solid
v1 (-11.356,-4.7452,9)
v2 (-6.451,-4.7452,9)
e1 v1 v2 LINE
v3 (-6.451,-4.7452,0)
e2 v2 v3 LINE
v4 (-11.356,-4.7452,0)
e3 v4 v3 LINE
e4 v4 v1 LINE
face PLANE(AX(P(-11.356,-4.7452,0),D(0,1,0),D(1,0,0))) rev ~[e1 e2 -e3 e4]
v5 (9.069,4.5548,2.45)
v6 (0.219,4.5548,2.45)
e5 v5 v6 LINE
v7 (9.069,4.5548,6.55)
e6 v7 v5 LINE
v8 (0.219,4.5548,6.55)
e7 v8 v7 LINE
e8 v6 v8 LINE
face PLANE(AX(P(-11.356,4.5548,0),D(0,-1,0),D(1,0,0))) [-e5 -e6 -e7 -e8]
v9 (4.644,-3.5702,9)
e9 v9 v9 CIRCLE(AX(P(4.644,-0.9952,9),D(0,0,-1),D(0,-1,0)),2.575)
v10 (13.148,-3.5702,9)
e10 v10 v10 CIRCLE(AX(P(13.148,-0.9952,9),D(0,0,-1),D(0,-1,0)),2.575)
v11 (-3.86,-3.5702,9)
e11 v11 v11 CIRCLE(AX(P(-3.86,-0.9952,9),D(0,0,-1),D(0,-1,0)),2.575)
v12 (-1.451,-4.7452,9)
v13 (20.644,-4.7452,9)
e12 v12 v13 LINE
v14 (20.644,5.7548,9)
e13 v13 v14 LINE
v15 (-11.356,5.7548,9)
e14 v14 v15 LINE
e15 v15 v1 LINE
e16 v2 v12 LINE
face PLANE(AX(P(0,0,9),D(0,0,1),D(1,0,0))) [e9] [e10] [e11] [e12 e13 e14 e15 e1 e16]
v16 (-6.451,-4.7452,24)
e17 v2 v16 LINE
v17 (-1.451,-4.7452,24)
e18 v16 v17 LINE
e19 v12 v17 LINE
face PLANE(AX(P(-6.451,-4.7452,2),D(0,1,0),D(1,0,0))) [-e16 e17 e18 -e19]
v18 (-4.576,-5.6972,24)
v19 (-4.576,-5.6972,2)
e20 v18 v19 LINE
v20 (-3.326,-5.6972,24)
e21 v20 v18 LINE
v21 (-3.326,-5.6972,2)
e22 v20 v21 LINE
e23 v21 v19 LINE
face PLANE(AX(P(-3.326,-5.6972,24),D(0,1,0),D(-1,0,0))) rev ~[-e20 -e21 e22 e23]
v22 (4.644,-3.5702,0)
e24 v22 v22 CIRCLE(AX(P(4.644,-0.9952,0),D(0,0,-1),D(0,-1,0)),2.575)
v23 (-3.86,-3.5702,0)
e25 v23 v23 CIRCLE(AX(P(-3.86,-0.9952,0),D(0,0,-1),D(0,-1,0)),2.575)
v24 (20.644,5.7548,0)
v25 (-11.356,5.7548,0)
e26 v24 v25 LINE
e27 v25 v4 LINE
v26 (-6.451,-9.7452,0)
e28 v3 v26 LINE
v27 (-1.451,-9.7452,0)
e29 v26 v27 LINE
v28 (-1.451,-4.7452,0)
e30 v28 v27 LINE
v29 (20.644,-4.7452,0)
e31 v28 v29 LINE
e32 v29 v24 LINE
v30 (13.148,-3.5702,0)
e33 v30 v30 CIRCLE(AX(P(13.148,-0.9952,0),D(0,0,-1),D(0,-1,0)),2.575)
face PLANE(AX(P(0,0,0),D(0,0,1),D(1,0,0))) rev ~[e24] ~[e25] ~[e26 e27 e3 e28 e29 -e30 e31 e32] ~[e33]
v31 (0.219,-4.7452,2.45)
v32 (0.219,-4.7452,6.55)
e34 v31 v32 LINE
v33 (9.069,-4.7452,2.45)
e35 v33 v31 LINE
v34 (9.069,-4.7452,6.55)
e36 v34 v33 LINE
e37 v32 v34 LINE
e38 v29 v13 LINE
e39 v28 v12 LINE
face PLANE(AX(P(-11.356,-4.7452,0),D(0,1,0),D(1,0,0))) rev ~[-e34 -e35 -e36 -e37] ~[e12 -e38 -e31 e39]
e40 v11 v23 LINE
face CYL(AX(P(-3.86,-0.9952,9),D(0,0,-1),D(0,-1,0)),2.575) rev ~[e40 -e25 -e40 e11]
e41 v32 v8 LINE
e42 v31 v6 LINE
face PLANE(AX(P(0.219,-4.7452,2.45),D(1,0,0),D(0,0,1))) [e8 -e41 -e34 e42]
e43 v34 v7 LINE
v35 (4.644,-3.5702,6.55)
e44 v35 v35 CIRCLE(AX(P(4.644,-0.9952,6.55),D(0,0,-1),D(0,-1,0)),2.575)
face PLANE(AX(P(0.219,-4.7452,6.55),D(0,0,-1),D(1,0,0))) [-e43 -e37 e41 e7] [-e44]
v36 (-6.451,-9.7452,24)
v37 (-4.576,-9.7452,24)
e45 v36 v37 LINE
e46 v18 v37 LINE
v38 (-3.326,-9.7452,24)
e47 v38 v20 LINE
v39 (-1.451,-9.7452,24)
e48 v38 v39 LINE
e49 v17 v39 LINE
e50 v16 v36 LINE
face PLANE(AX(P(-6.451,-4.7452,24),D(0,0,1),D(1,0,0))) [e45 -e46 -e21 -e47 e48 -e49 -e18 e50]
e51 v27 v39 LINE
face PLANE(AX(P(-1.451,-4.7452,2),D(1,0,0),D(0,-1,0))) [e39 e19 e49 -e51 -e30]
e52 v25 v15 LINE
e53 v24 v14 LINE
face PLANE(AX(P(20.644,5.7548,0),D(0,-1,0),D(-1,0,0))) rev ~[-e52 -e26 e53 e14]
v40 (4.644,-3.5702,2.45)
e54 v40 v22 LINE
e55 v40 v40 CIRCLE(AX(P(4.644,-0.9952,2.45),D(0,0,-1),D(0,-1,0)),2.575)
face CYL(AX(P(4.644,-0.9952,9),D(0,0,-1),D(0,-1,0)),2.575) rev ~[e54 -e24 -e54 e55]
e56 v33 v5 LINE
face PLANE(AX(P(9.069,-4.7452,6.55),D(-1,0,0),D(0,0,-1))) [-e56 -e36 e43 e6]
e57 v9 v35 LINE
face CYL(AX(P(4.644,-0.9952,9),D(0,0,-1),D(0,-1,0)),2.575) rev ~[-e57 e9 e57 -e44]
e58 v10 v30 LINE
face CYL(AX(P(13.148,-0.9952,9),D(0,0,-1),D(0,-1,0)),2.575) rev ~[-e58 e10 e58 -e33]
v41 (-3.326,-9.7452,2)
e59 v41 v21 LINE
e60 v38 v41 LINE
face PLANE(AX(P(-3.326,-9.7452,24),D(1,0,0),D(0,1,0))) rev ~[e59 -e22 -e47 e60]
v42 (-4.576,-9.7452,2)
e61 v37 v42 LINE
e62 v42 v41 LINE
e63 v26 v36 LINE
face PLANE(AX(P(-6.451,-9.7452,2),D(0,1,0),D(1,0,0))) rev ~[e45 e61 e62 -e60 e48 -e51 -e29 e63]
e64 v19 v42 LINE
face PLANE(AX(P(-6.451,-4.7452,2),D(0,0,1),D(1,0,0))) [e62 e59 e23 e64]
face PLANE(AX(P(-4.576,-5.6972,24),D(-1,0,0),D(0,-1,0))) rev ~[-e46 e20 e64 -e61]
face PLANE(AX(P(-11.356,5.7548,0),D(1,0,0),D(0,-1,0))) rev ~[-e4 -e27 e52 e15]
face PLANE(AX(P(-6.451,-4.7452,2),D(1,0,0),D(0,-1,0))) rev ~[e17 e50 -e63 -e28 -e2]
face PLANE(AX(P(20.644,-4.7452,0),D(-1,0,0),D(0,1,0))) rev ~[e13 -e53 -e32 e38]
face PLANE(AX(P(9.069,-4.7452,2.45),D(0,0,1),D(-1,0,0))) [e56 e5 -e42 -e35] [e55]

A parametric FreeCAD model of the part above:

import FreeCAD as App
import Part
import Sketcher
Q = App.Units.Quantity


def add_polygon(sketch, points):
    """Adds a closed chain of lines whose ends are joined by coincident constraints."""
    first, n = sketch.GeometryCount, len(points)
    for a, b in zip(points, points[1:] + points[:1]):
        sketch.addGeometry(Part.LineSegment(App.Vector(*a, 0), App.Vector(*b, 0)), False)
    for i in range(n):
        sketch.addConstraint(Sketcher.Constraint("Coincident", first + i, 2, first + (i + 1) % n, 1))

doc = App.newDocument("Part")
body = doc.addObject("PartDesign::Body", "Body")

# Sketch on XY plane
sketch1 = doc.addObject("Sketcher::SketchObject", "Sketch")
body.addObject(sketch1)
sketch1.AttachmentSupport = (doc.XY_Plane, [""])
sketch1.MapMode = "FlatFace"
add_polygon(sketch1, [(-11.356, 5.7548), (-11.356, -4.7452), (20.644, -4.7452), (20.644, 5.7548)])  # lines 0-3
sketch1.addConstraint(Sketcher.Constraint("Vertical", 0))
sketch1.addConstraint(Sketcher.Constraint("Horizontal", 1))
sketch1.addConstraint(Sketcher.Constraint("Vertical", 2))
sketch1.addConstraint(Sketcher.Constraint("Horizontal", 3))
sketch1.addConstraint(Sketcher.Constraint("DistanceX", 1, 1, 1, 2, Q("32 mm")))
sketch1.addConstraint(Sketcher.Constraint("DistanceY", 0, 2, 0, 1, Q("10.5 mm")))
sketch1.addConstraint(Sketcher.Constraint("DistanceX", 0, 2, -1, 1, Q("11.356 mm")))
sketch1.addConstraint(Sketcher.Constraint("DistanceY", 0, 2, -1, 1, Q("4.7452 mm")))
pad1 = doc.addObject("PartDesign::Pad", "Pad")
body.addObject(pad1)
pad1.Profile = sketch1
pad1.Length = 9

# Sketch on XY plane
sketch2 = doc.addObject("Sketcher::SketchObject", "Sketch001")
body.addObject(sketch2)
sketch2.AttachmentSupport = (doc.XY_Plane, [""])
sketch2.MapMode = "FlatFace"
sketch2.AttachmentOffset = App.Placement(App.Vector(0, 0, 9), App.Rotation())
sketch2.addGeometry(Part.Circle(App.Vector(-3.86, -0.9952, 0), App.Vector(0, 0, 1), 2.575), False)
sketch2.addGeometry(Part.Circle(App.Vector(4.644, -0.9952, 0), App.Vector(0, 0, 1), 2.575), False)
sketch2.addGeometry(Part.Circle(App.Vector(13.148, -0.9952, 0), App.Vector(0, 0, 1), 2.575), False)
sketch2.addConstraint(Sketcher.Constraint("Equal", 0, 1))
sketch2.addConstraint(Sketcher.Constraint("Equal", 1, 2))
sketch2.addConstraint(Sketcher.Constraint("Horizontal", 0, 3, 1, 3))
sketch2.addConstraint(Sketcher.Constraint("Horizontal", 1, 3, 2, 3))
sketch2.addConstraint(Sketcher.Constraint("Diameter", 0, Q("5.15 mm")))
sketch2.addConstraint(Sketcher.Constraint("DistanceX", 0, 3, -1, 1, Q("3.86 mm")))
sketch2.addConstraint(Sketcher.Constraint("DistanceX", -1, 1, 1, 3, Q("4.644 mm")))
sketch2.addConstraint(Sketcher.Constraint("DistanceX", -1, 1, 2, 3, Q("13.148 mm")))
sketch2.addConstraint(Sketcher.Constraint("DistanceY", 0, 3, -1, 1, Q("0.9952 mm")))
doc.recompute()
hole = doc.addObject("PartDesign::Hole", "Hole")
body.addObject(hole)
hole.Profile = sketch2
hole.ThreadType = "None"
hole.Diameter = 5.15
hole.DepthType = "ThroughAll"

# Sketch on XZ plane
sketch3 = doc.addObject("Sketcher::SketchObject", "Sketch002")
body.addObject(sketch3)
sketch3.AttachmentSupport = (doc.XZ_Plane, [""])
sketch3.MapMode = "FlatFace"
sketch3.AttachmentOffset = App.Placement(App.Vector(0, 0, 4.7452), App.Rotation())
add_polygon(sketch3, [(9.069, 6.55), (0.219, 6.55), (0.219, 2.45), (9.069, 2.45)])  # lines 0-3
sketch3.addConstraint(Sketcher.Constraint("Horizontal", 0))
sketch3.addConstraint(Sketcher.Constraint("Vertical", 1))
sketch3.addConstraint(Sketcher.Constraint("Horizontal", 2))
sketch3.addConstraint(Sketcher.Constraint("Vertical", 3))
sketch3.addConstraint(Sketcher.Constraint("DistanceY", 1, 2, 1, 1, Q("4.1 mm")))
sketch3.addConstraint(Sketcher.Constraint("DistanceX", 0, 2, 0, 1, Q("8.85 mm")))
sketch3.addConstraint(Sketcher.Constraint("DistanceY", -1, 1, 1, 2, Q("2.45 mm")))
sketch3.addConstraint(Sketcher.Constraint("DistanceX", -1, 1, 0, 2, Q("0.219 mm")))
pocket1 = doc.addObject("PartDesign::Pocket", "Pocket")
body.addObject(pocket1)
pocket1.Profile = sketch3
pocket1.Length = 9.3

# Sketch on XZ plane
sketch4 = doc.addObject("Sketcher::SketchObject", "Sketch003")
body.addObject(sketch4)
sketch4.AttachmentSupport = (doc.XZ_Plane, [""])
sketch4.MapMode = "FlatFace"
sketch4.AttachmentOffset = App.Placement(App.Vector(0, 0, 4.7452), App.Rotation())
add_polygon(sketch4, [(-6.451, 2), (-6.451, 0), (-1.451, 0), (-1.451, 2)])  # lines 0-3
sketch4.addConstraint(Sketcher.Constraint("Vertical", 0))
sketch4.addConstraint(Sketcher.Constraint("Horizontal", 1))
sketch4.addConstraint(Sketcher.Constraint("Vertical", 2))
sketch4.addConstraint(Sketcher.Constraint("Horizontal", 3))
sketch4.addConstraint(Sketcher.Constraint("PointOnObject", 0, 2, -1))
sketch4.addConstraint(Sketcher.Constraint("DistanceX", 1, 1, 1, 2, Q("5 mm")))
sketch4.addConstraint(Sketcher.Constraint("DistanceY", 0, 2, 0, 1, Q("2 mm")))
sketch4.addConstraint(Sketcher.Constraint("DistanceX", 0, 2, -1, 1, Q("6.451 mm")))
pad2 = doc.addObject("PartDesign::Pad", "Pad001")
body.addObject(pad2)
pad2.Profile = sketch4
pad2.Length = 5

# Sketch on XY plane
sketch5 = doc.addObject("Sketcher::SketchObject", "Sketch004")
body.addObject(sketch5)
sketch5.AttachmentSupport = (doc.XY_Plane, [""])
sketch5.MapMode = "FlatFace"
sketch5.AttachmentOffset = App.Placement(App.Vector(0, 0, 2), App.Rotation())
add_polygon(sketch5, [(-6.451, -4.7452), (-6.451, -9.7452), (-1.451, -9.7452), (-1.451, -4.7452)])  # lines 0-3
sketch5.addConstraint(Sketcher.Constraint("Vertical", 0))
sketch5.addConstraint(Sketcher.Constraint("Horizontal", 1))
sketch5.addConstraint(Sketcher.Constraint("Vertical", 2))
sketch5.addConstraint(Sketcher.Constraint("Horizontal", 3))
sketch5.addConstraint(Sketcher.Constraint("Equal", 3, 0))
sketch5.addConstraint(Sketcher.Constraint("DistanceX", 1, 1, 1, 2, Q("5 mm")))
sketch5.addConstraint(Sketcher.Constraint("DistanceX", 0, 2, -1, 1, Q("6.451 mm")))
sketch5.addConstraint(Sketcher.Constraint("DistanceY", 0, 2, -1, 1, Q("9.7452 mm")))
pad3 = doc.addObject("PartDesign::Pad", "Pad002")
body.addObject(pad3)
pad3.Profile = sketch5
pad3.Length = 22

# Sketch on XY plane
sketch6 = doc.addObject("Sketcher::SketchObject", "Sketch005")
body.addObject(sketch6)
sketch6.AttachmentSupport = (doc.XY_Plane, [""])
sketch6.MapMode = "FlatFace"
sketch6.AttachmentOffset = App.Placement(App.Vector(0, 0, 24), App.Rotation())
add_polygon(sketch6, [(-4.576, -5.6972), (-4.576, -9.7452), (-3.326, -9.7452), (-3.326, -5.6972)])  # lines 0-3
sketch6.addConstraint(Sketcher.Constraint("Vertical", 0))
sketch6.addConstraint(Sketcher.Constraint("Horizontal", 1))
sketch6.addConstraint(Sketcher.Constraint("Vertical", 2))
sketch6.addConstraint(Sketcher.Constraint("Horizontal", 3))
sketch6.addConstraint(Sketcher.Constraint("DistanceY", 0, 2, 0, 1, Q("4.048 mm")))
sketch6.addConstraint(Sketcher.Constraint("DistanceX", 1, 1, 1, 2, Q("1.25 mm")))
sketch6.addConstraint(Sketcher.Constraint("DistanceX", 0, 2, -1, 1, Q("4.576 mm")))
sketch6.addConstraint(Sketcher.Constraint("DistanceY", 0, 2, -1, 1, Q("9.7452 mm")))
pocket2 = doc.addObject("PartDesign::Pocket", "Pocket001")
body.addObject(pocket2)
pocket2.Profile = sketch6
pocket2.Length = 22

doc.recompute()
